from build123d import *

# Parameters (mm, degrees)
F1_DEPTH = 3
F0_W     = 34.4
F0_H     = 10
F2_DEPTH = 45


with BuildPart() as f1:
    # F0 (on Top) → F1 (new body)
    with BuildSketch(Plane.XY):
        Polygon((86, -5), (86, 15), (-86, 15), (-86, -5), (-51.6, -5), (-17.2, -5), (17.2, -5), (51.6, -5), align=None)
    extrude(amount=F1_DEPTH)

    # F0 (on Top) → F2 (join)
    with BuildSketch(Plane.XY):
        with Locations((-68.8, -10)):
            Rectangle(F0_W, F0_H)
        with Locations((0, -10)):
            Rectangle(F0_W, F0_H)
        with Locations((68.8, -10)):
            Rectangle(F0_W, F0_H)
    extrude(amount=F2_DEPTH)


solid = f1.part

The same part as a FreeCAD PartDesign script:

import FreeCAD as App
import Part
import Sketcher
from FreeCAD import Vector
Q = App.Units.Quantity

doc = App.newDocument("Part")
body = doc.addObject("PartDesign::Body", "Body")

# Sketch on XY plane
sketch1 = doc.addObject("Sketcher::SketchObject", "Sketch")
body.addObject(sketch1)
sketch1.AttachmentSupport = (doc.XY_Plane, [""])
sketch1.MapMode = "FlatFace"
sketch1.addGeometry([
    Part.LineSegment(Vector(86, -5, 0), Vector(86, 15, 0)),
    Part.LineSegment(Vector(86, 15, 0), Vector(-86, 15, 0)),
    Part.LineSegment(Vector(-86, 15, 0), Vector(-86, -5, 0)),
    Part.LineSegment(Vector(-86, -5, 0), Vector(86, -5, 0)),
], False)
sketch1.addConstraint([
    Sketcher.Constraint("Coincident", 0, 2, 1, 1),
    Sketcher.Constraint("Coincident", 1, 2, 2, 1),
    Sketcher.Constraint("Coincident", 2, 2, 3, 1),
    Sketcher.Constraint("Coincident", 3, 2, 0, 1),
    Sketcher.Constraint("Vertical", 0),
    Sketcher.Constraint("Horizontal", 1),
    Sketcher.Constraint("Vertical", 2),
    Sketcher.Constraint("Horizontal", 3),
    Sketcher.Constraint("DistanceX", 1, 2, 1, 1, Q("172 mm")),
    Sketcher.Constraint("DistanceY", 0, 1, 0, 2, Q("20 mm")),
    Sketcher.Constraint("DistanceX", -1, 1, 0, 2, Q("86 mm")),
    Sketcher.Constraint("DistanceY", -1, 1, 0, 2, Q("15 mm")),
])
pad1 = doc.addObject("PartDesign::Pad", "Pad")
body.addObject(pad1)
pad1.Profile = sketch1
pad1.Length = 3

# Sketch on XY plane
sketch2 = doc.addObject("Sketcher::SketchObject", "Sketch001")
body.addObject(sketch2)
sketch2.AttachmentSupport = (doc.XY_Plane, [""])
sketch2.MapMode = "FlatFace"
sketch2.addGeometry([
    Part.LineSegment(Vector(-86, -5, 0), Vector(-86, -15, 0)),  # 0
    Part.LineSegment(Vector(-86, -15, 0), Vector(-52, -15, 0)),  # 1
    Part.LineSegment(Vector(-52, -15, 0), Vector(-52, -5, 0)),  # 2
    Part.LineSegment(Vector(-52, -5, 0), Vector(-86, -5, 0)),  # 3
    Part.LineSegment(Vector(-17, -5, 0), Vector(-17, -15, 0)),  # 4
    Part.LineSegment(Vector(-17, -15, 0), Vector(17, -15, 0)),  # 5
    Part.LineSegment(Vector(17, -15, 0), Vector(17, -5, 0)),  # 6
    Part.LineSegment(Vector(17, -5, 0), Vector(-17, -5, 0)),  # 7
    Part.LineSegment(Vector(52, -5, 0), Vector(52, -15, 0)),  # 8
    Part.LineSegment(Vector(52, -15, 0), Vector(86, -15, 0)),  # 9
    Part.LineSegment(Vector(86, -15, 0), Vector(86, -5, 0)),  # 10
    Part.LineSegment(Vector(86, -5, 0), Vector(52, -5, 0)),  # 11
], False)
sketch2.addConstraint([
    Sketcher.Constraint("Coincident", 0, 2, 1, 1),
    Sketcher.Constraint("Coincident", 1, 2, 2, 1),
    Sketcher.Constraint("Coincident", 2, 2, 3, 1),
    Sketcher.Constraint("Coincident", 3, 2, 0, 1),
    Sketcher.Constraint("Coincident", 4, 2, 5, 1),
    Sketcher.Constraint("Coincident", 5, 2, 6, 1),
    Sketcher.Constraint("Coincident", 6, 2, 7, 1),
    Sketcher.Constraint("Coincident", 7, 2, 4, 1),
    Sketcher.Constraint("Coincident", 8, 2, 9, 1),
    Sketcher.Constraint("Coincident", 9, 2, 10, 1),
    Sketcher.Constraint("Coincident", 10, 2, 11, 1),
    Sketcher.Constraint("Coincident", 11, 2, 8, 1),
    Sketcher.Constraint("Vertical", 0),
    Sketcher.Constraint("Horizontal", 1),
    Sketcher.Constraint("Vertical", 2),
    Sketcher.Constraint("Horizontal", 3),
    Sketcher.Constraint("Vertical", 4),
    Sketcher.Constraint("Horizontal", 5),
    Sketcher.Constraint("Vertical", 6),
    Sketcher.Constraint("Horizontal", 7),
    Sketcher.Constraint("Vertical", 8),
    Sketcher.Constraint("Horizontal", 9),
    Sketcher.Constraint("Vertical", 10),
    Sketcher.Constraint("Horizontal", 11),
    Sketcher.Constraint("Symmetric", 1, 2, 8, 2, -2),
    Sketcher.Constraint("Symmetric", 3, 2, 10, 2, -2),
    Sketcher.Constraint("Horizontal", 1, 2, 4, 2),
    Sketcher.Constraint("Horizontal", 3, 2, 6, 2),
    Sketcher.Constraint("Equal", 3, 5),
    Sketcher.Constraint("DistanceY", 0, 2, 0, 1, Q("10 mm")),
    Sketcher.Constraint("DistanceX", 1, 1, 1, 2, Q("34.4 mm")),
    Sketcher.Constraint("DistanceX", 0, 2, -1, 1, Q("86 mm")),
    Sketcher.Constraint("DistanceY", 0, 2, -1, 1, Q("15 mm")),
    Sketcher.Constraint("DistanceX", 4, 2, -1, 1, Q("17.2 mm")),
])
pad2 = doc.addObject("PartDesign::Pad", "Pad001")
body.addObject(pad2)
pad2.Profile = sketch2
pad2.Length = 45

doc.recompute()
